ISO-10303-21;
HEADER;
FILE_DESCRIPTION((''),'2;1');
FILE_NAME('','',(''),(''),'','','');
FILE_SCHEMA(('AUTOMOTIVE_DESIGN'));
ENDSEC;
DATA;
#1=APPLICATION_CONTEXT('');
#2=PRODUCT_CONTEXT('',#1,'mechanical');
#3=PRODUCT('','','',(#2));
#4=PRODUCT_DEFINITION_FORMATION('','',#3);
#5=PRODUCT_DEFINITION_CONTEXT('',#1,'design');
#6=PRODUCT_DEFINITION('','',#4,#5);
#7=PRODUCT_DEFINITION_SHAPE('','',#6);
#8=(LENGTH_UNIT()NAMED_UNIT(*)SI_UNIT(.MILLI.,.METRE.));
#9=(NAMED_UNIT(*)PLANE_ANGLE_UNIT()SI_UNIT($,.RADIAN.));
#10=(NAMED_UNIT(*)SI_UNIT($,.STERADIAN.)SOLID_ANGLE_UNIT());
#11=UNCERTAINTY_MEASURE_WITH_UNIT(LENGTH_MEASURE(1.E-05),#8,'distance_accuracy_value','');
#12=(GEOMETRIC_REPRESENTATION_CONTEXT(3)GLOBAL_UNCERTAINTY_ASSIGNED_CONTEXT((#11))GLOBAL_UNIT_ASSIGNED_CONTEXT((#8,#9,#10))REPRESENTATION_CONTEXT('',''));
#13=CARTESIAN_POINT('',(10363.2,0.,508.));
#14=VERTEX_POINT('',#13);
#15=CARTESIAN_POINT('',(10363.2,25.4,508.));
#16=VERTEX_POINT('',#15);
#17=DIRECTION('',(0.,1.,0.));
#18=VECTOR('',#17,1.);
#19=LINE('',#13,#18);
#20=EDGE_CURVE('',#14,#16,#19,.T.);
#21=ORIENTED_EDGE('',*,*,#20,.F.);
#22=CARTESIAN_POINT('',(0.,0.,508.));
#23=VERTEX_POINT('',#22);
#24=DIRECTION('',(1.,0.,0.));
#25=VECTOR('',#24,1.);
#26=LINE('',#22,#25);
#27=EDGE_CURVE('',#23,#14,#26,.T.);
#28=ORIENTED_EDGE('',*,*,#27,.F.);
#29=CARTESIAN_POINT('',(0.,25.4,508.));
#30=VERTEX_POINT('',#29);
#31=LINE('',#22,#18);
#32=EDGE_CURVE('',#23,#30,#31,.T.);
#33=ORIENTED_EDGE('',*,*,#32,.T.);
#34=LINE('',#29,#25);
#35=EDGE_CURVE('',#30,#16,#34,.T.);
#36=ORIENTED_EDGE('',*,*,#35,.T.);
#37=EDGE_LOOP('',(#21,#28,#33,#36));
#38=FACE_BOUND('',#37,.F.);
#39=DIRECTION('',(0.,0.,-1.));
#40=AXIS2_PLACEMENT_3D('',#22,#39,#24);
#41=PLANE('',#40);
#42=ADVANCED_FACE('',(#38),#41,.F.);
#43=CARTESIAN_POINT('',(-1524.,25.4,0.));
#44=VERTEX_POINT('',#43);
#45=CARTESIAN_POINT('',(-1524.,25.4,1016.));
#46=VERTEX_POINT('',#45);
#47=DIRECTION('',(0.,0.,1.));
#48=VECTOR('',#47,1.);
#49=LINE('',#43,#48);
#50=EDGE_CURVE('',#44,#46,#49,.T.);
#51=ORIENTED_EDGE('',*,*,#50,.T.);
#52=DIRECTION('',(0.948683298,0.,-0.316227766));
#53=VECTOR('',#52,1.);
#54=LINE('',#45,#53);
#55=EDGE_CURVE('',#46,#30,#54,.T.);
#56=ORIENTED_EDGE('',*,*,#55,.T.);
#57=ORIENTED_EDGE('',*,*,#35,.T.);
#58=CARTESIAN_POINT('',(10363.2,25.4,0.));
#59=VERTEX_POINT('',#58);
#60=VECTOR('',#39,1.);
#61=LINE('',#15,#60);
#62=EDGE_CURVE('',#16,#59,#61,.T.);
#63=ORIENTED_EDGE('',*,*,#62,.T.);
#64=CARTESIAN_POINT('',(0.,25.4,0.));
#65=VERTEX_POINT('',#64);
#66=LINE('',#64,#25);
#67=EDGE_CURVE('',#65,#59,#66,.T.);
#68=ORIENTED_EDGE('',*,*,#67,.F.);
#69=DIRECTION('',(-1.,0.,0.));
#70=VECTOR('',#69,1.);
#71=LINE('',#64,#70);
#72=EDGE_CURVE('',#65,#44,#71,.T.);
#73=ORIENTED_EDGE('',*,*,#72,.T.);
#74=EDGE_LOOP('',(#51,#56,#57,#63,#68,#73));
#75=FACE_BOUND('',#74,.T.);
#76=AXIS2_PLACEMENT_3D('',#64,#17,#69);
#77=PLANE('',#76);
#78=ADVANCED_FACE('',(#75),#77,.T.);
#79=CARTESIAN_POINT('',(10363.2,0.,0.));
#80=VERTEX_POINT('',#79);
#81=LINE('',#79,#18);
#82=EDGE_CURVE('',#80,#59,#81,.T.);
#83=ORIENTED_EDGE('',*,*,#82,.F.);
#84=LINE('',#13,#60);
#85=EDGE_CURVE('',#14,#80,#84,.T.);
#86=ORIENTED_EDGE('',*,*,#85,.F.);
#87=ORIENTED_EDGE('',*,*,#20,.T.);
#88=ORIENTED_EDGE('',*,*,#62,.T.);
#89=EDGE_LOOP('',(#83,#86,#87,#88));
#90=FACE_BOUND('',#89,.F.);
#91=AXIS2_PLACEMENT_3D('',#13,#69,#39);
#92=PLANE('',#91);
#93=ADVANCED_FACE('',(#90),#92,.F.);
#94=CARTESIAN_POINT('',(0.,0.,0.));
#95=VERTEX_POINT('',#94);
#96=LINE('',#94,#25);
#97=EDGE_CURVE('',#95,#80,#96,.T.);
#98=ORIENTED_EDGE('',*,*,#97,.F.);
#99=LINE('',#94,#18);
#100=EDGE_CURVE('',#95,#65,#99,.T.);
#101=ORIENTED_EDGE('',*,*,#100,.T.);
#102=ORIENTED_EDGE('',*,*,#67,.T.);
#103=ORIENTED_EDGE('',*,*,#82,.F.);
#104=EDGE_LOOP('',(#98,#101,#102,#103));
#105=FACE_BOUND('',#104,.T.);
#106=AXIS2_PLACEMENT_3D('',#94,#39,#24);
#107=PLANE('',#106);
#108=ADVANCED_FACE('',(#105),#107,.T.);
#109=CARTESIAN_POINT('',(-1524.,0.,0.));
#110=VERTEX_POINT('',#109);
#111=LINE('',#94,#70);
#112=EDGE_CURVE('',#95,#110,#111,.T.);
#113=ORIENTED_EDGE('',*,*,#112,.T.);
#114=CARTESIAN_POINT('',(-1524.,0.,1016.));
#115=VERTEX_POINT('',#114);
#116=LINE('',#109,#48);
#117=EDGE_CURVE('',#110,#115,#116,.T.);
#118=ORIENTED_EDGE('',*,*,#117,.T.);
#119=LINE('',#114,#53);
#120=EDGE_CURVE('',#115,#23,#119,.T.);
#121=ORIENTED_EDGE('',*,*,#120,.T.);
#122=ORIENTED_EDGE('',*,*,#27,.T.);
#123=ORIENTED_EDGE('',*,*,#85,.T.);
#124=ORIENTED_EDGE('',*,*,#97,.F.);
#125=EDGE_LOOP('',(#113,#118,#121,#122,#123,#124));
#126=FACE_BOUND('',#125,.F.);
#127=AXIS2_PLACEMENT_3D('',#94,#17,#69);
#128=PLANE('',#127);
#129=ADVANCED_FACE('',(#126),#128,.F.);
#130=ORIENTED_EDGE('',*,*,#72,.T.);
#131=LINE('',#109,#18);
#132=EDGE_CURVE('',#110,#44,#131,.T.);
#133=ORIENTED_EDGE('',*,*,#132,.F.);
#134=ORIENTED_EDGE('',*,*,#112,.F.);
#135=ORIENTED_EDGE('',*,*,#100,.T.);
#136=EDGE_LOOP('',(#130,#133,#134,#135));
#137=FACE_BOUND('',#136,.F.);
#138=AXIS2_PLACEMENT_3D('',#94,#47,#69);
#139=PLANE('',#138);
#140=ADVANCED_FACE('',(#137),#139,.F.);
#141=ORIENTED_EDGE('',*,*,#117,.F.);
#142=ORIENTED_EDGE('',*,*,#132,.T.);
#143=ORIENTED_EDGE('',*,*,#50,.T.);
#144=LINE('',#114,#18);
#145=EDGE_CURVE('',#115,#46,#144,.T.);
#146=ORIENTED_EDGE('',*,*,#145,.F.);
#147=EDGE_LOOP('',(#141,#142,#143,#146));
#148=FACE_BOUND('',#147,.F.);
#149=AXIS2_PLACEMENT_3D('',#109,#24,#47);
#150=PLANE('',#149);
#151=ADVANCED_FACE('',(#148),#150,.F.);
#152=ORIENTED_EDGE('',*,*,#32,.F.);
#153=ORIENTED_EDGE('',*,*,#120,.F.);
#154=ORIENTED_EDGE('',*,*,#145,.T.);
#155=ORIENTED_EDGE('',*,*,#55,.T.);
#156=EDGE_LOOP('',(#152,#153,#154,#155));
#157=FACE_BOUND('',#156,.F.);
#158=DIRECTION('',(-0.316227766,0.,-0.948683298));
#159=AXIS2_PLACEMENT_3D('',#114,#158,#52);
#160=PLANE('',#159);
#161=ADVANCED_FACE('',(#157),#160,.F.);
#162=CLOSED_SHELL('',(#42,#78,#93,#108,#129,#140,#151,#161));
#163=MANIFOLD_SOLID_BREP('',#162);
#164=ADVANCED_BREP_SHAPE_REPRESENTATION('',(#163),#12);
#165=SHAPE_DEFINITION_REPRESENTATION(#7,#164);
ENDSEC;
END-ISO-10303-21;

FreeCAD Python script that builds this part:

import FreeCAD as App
import Part
import Sketcher
from FreeCAD import Vector
Q = App.Units.Quantity


def add_polygon(sketch, points):
    """Adds a closed chain of lines whose ends are joined by coincident constraints."""
    first, n = sketch.GeometryCount, len(points)
    for a, b in zip(points, points[1:] + points[:1]):
        sketch.addGeometry(Part.LineSegment(App.Vector(*a, 0), App.Vector(*b, 0)), False)
    for i in range(n):
        sketch.addConstraint(Sketcher.Constraint("Coincident", first + i, 2, first + (i + 1) % n, 1))

doc = App.newDocument("Part")
body = doc.addObject("PartDesign::Body", "Body")

# Sketch on XZ plane
sketch1 = doc.addObject("Sketcher::SketchObject", "Sketch")
body.addObject(sketch1)
sketch1.AttachmentSupport = (doc.XZ_Plane, [""])
sketch1.MapMode = "FlatFace"
add_polygon(sketch1, [(10363.2, 0), (-1524, 0), (-1524, 1016), (0, 508), (10363.2, 508)])  # lines 0-4
sketch1.addConstraint([
    Sketcher.Constraint("Horizontal", 0),
    Sketcher.Constraint("Vertical", 1),
    Sketcher.Constraint("Horizontal", 3),
    Sketcher.Constraint("Vertical", 4),
    Sketcher.Constraint("PointOnObject", 0, 2, -1),
    Sketcher.Constraint("PointOnObject", 2, 2, -2),
    Sketcher.Constraint("DistanceX", 3, 1, 3, 2, Q("408 in")),
    Sketcher.Constraint("DistanceY", 1, 1, 1, 2, Q("40 in")),
    Sketcher.Constraint("DistanceY", 4, 2, 4, 1, Q("20 in")),
    Sketcher.Constraint("DistanceX", 0, 2, -1, 1, Q("60 in")),
])
pad1 = doc.addObject("PartDesign::Pad", "Pad")
body.addObject(pad1)
pad1.Profile = sketch1
pad1.Length = Q("1 in")
pad1.Reversed = True

doc.recompute()
